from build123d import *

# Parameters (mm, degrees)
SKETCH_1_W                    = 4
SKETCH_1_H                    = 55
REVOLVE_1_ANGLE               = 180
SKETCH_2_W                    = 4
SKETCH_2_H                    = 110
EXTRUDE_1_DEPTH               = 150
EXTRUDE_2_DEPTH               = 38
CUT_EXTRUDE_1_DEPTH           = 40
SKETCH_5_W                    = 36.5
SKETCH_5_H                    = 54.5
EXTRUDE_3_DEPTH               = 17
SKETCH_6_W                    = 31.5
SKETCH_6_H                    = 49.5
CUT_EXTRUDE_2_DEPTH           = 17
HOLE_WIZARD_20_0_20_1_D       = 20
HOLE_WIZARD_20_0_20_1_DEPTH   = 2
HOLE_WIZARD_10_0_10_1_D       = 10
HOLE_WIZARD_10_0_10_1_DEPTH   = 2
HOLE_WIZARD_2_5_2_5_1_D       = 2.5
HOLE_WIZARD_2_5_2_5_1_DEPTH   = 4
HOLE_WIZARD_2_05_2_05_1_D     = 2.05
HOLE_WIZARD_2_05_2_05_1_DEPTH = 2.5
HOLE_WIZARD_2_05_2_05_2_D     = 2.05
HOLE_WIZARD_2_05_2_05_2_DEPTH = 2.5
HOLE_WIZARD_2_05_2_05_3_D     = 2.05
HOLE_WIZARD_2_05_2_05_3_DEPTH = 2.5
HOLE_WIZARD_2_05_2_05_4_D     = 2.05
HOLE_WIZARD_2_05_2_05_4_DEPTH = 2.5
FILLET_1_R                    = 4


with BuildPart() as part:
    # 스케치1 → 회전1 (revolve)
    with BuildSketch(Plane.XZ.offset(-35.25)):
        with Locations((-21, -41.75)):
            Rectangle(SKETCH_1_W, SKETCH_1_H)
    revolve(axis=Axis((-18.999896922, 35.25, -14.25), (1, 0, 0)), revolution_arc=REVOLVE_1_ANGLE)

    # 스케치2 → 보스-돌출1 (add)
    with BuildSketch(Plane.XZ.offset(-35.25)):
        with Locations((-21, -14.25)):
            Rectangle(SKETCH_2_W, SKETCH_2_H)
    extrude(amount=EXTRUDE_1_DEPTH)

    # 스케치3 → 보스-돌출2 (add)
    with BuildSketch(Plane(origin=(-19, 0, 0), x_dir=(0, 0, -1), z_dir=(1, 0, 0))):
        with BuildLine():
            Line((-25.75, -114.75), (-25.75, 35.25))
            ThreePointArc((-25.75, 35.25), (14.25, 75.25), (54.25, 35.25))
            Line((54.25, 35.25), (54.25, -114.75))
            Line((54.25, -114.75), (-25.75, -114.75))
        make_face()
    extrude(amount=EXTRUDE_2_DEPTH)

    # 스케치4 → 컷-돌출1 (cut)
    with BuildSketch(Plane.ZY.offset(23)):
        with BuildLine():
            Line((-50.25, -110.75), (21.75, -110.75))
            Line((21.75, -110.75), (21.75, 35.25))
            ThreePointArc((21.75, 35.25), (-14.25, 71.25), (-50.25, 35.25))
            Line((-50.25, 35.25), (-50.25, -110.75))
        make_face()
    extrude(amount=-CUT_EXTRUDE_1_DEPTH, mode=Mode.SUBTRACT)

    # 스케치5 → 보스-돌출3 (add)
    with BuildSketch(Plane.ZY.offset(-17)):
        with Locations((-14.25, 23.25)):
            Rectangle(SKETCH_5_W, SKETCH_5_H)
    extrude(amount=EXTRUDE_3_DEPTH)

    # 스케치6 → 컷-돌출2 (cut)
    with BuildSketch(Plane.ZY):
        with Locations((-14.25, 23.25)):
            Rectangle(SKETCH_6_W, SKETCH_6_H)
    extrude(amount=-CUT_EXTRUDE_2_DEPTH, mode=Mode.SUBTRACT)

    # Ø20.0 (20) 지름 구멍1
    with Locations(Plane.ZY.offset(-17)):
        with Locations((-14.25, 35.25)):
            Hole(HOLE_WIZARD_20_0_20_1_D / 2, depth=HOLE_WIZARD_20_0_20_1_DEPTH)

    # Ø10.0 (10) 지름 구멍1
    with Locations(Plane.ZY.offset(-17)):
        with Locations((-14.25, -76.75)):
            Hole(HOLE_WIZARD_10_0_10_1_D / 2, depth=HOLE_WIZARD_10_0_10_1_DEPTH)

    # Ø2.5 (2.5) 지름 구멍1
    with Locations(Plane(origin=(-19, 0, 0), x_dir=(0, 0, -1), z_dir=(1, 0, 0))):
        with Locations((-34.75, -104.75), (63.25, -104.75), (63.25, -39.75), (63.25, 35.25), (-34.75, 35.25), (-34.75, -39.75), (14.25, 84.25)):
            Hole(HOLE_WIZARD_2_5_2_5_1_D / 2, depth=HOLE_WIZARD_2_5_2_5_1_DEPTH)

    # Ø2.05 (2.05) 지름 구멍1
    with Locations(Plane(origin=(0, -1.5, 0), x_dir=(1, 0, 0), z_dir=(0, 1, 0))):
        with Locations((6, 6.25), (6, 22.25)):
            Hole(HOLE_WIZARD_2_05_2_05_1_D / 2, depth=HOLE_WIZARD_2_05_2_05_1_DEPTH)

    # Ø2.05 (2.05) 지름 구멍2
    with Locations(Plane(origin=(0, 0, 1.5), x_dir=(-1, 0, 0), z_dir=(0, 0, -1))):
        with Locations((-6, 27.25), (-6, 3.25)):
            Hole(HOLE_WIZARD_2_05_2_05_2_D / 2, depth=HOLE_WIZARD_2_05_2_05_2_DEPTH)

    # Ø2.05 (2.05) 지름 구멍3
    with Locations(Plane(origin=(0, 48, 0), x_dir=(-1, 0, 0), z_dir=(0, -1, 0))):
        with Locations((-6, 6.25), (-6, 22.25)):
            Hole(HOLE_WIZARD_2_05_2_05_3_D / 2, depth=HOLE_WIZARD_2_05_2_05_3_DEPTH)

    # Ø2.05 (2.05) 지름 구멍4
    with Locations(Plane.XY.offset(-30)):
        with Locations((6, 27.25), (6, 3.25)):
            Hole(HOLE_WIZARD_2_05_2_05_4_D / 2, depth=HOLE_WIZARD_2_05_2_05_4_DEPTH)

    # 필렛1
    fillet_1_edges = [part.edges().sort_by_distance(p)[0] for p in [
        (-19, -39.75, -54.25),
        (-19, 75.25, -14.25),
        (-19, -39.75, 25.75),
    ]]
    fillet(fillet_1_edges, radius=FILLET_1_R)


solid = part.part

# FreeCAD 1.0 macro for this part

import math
import FreeCAD as App
import Part
import Sketcher
from FreeCAD import Vector


def edges_at(feature, points):
    """Names of the edges that pass closest to the given points."""
    edges = feature.Shape.Edges
    near = lambda p: min(range(len(edges)), key=lambda i: edges[i].distToShape(Part.Vertex(*p))[0])
    return sorted({f"Edge{near(p) + 1}" for p in points})

doc = App.newDocument("Part")
body = doc.addObject("PartDesign::Body", "Body")

sketch1 = body.newObject("Sketcher::SketchObject", "Sketch")
sketch1.AttachmentSupport = (doc.getObject("XZ_Plane"), [""])
sketch1.MapMode = "FlatFace"
sketch1.AttachmentOffset = App.Placement(Vector(0, 0, -35.25), App.Rotation())
sketch1.addGeometry([
    Part.LineSegment(Vector(-23, -14.2, 0), Vector(-23, -69.2, 0)),
    Part.LineSegment(Vector(-23, -69.2, 0), Vector(-19, -69.2, 0)),
    Part.LineSegment(Vector(-19, -69.2, 0), Vector(-19, -14.2, 0)),
    Part.LineSegment(Vector(-19, -14.2, 0), Vector(-23, -14.2, 0)),
], False)
sketch1.addGeometry(Part.LineSegment(Vector(-23, -14.2, 0), Vector(-19, -14.2, 0)), True)
sketch1.addConstraint([
    Sketcher.Constraint("Coincident", 0, 2, 1, 1),
    Sketcher.Constraint("Coincident", 1, 2, 2, 1),
    Sketcher.Constraint("Coincident", 2, 2, 3, 1),
    Sketcher.Constraint("Coincident", 3, 2, 0, 1),
    Sketcher.Constraint("Vertical", 0),
    Sketcher.Constraint("Horizontal", 1),
    Sketcher.Constraint("Vertical", 2),
    Sketcher.Constraint("Horizontal", 3),
    Sketcher.Constraint("Horizontal", 4),
    Sketcher.Constraint("Coincident", 4, 1, 3, 2),
    Sketcher.Constraint("Vertical", 1, 2, 4, 2),
    Sketcher.Constraint("DistanceX", 1, 1, 1, 2, 4.0),
    Sketcher.Constraint("DistanceY", 0, 2, 0, 1, 55.0),
    Sketcher.Constraint("DistanceX", 0, 2, -1, 1, 23.0),
    Sketcher.Constraint("DistanceY", 0, 2, -1, 1, 69.25),
])
revolution = body.newObject("PartDesign::Revolution", "Revolution")
revolution.Profile = sketch1
revolution.ReferenceAxis = (sketch1, ["Axis0"])
revolution.Angle = 180

sketch2 = body.newObject("Sketcher::SketchObject", "Sketch001")
sketch2.AttachmentSupport = (doc.getObject("XZ_Plane"), [""])
sketch2.MapMode = "FlatFace"
sketch2.AttachmentOffset = App.Placement(Vector(0, 0, -35.25), App.Rotation())
sketch2.addGeometry([
    Part.LineSegment(Vector(-23, 40.8, 0), Vector(-23, -69.2, 0)),
    Part.LineSegment(Vector(-23, -69.2, 0), Vector(-19, -69.2, 0)),
    Part.LineSegment(Vector(-19, -69.2, 0), Vector(-19, 40.8, 0)),
    Part.LineSegment(Vector(-19, 40.8, 0), Vector(-23, 40.8, 0)),
], False)
sketch2.addConstraint([
    Sketcher.Constraint("Coincident", 0, 2, 1, 1),
    Sketcher.Constraint("Coincident", 1, 2, 2, 1),
    Sketcher.Constraint("Coincident", 2, 2, 3, 1),
    Sketcher.Constraint("Coincident", 3, 2, 0, 1),
    Sketcher.Constraint("Vertical", 0),
    Sketcher.Constraint("Horizontal", 1),
    Sketcher.Constraint("Vertical", 2),
    Sketcher.Constraint("Horizontal", 3),
    Sketcher.Constraint("DistanceX", 1, 1, 1, 2, 4.0),
    Sketcher.Constraint("DistanceY", 0, 2, 0, 1, 110.0),
    Sketcher.Constraint("DistanceX", 0, 2, -1, 1, 23.0),
    Sketcher.Constraint("DistanceY", 0, 2, -1, 1, 69.25),
])
pad1 = body.newObject("PartDesign::Pad", "Pad")
pad1.Profile = sketch2
pad1.Length = 150

sketch3 = body.newObject("Sketcher::SketchObject", "Sketch002")
sketch3.AttachmentSupport = (doc.getObject("YZ_Plane"), [""])
sketch3.MapMode = "FlatFace"
sketch3.AttachmentOffset = App.Placement(Vector(0, 0, -19), App.Rotation())
sketch3.addGeometry([
    Part.LineSegment(Vector(35, 26, 0), Vector(-115, 26, 0)),
    Part.LineSegment(Vector(-115, 26, 0), Vector(-115, -54, 0)),
    Part.LineSegment(Vector(-115, -54, 0), Vector(35, -54, 0)),
    Part.ArcOfCircle(Part.Circle(Vector(35, -14, 0), Vector(0, 0, 1), 40), math.radians(-90), math.radians(90)),
], False)
sketch3.addConstraint([
    Sketcher.Constraint("Coincident", 0, 2, 1, 1),
    Sketcher.Constraint("Coincident", 1, 2, 2, 1),
    Sketcher.Constraint("Tangent", 2, 2, 3, 1),
    Sketcher.Constraint("Tangent", 3, 2, 0, 1),
    Sketcher.Constraint("Horizontal", 0),
    Sketcher.Constraint("Vertical", 1),
    Sketcher.Constraint("Horizontal", 2),
    Sketcher.Constraint("Radius", 3, 40.0),
    Sketcher.Constraint("DistanceX", 0, 2, 0, 1, 150.0),
    Sketcher.Constraint("DistanceX", -1, 1, 3, 3, 35.25),
    Sketcher.Constraint("DistanceY", 3, 3, -1, 1, 14.25),
])
pad2 = body.newObject("PartDesign::Pad", "Pad001")
pad2.Profile = sketch3
pad2.Length = 38

sketch4 = body.newObject("Sketcher::SketchObject", "Sketch003")
sketch4.AttachmentSupport = (doc.getObject("YZ_Plane"), [""])
sketch4.MapMode = "FlatFace"
sketch4.AttachmentOffset = App.Placement(Vector(0, 0, -23), App.Rotation())
sketch4.addGeometry([
    Part.LineSegment(Vector(-111, -50, 0), Vector(-111, 22, 0)),
    Part.LineSegment(Vector(-111, 22, 0), Vector(35, 22, 0)),
    Part.ArcOfCircle(Part.Circle(Vector(35, -14, 0), Vector(0, 0, 1), 36), math.radians(-90), math.radians(90)),
    Part.LineSegment(Vector(35, -50, 0), Vector(-111, -50, 0)),
], False)
sketch4.addConstraint([
    Sketcher.Constraint("Coincident", 0, 2, 1, 1),
    Sketcher.Constraint("Tangent", 1, 2, 2, 2),
    Sketcher.Constraint("Tangent", 2, 1, 3, 1),
    Sketcher.Constraint("Coincident", 3, 2, 0, 1),
    Sketcher.Constraint("Vertical", 0),
    Sketcher.Constraint("Horizontal", 1),
    Sketcher.Constraint("Horizontal", 3),
    Sketcher.Constraint("Radius", 2, 36.0),
    Sketcher.Constraint("DistanceX", 1, 1, 1, 2, 146.0),
    Sketcher.Constraint("DistanceX", -1, 1, 2, 3, 35.25),
    Sketcher.Constraint("DistanceY", 2, 3, -1, 1, 14.25),
])
pocket1 = body.newObject("PartDesign::Pocket", "Pocket")
pocket1.Profile = sketch4
pocket1.Length = 40
pocket1.Reversed = True

sketch5 = body.newObject("Sketcher::SketchObject", "Sketch004")
sketch5.AttachmentSupport = (doc.getObject("YZ_Plane"), [""])
sketch5.MapMode = "FlatFace"
sketch5.AttachmentOffset = App.Placement(Vector(0, 0, 17), App.Rotation())
sketch5.addGeometry([
    Part.LineSegment(Vector(50, -32, 0), Vector(-4, -32, 0)),
    Part.LineSegment(Vector(-4, -32, 0), Vector(-4, 4, 0)),
    Part.LineSegment(Vector(-4, 4, 0), Vector(50, 4, 0)),
    Part.LineSegment(Vector(50, 4, 0), Vector(50, -32, 0)),
], False)
sketch5.addConstraint([
    Sketcher.Constraint("Coincident", 0, 2, 1, 1),
    Sketcher.Constraint("Coincident", 1, 2, 2, 1),
    Sketcher.Constraint("Coincident", 2, 2, 3, 1),
    Sketcher.Constraint("Coincident", 3, 2, 0, 1),
    Sketcher.Constraint("Horizontal", 0),
    Sketcher.Constraint("Vertical", 1),
    Sketcher.Constraint("Horizontal", 2),
    Sketcher.Constraint("Vertical", 3),
    Sketcher.Constraint("DistanceX", 0, 2, 0, 1, 54.5),
    Sketcher.Constraint("DistanceY", 1, 1, 1, 2, 36.5),
    Sketcher.Constraint("DistanceX", 0, 2, -1, 1, 4.0),
    Sketcher.Constraint("DistanceY", -1, 1, 1, 2, 4.0),
])
pad3 = body.newObject("PartDesign::Pad", "Pad002")
pad3.Profile = sketch5
pad3.Length = 17
pad3.Reversed = True

sketch6 = body.newObject("Sketcher::SketchObject", "Sketch005")
sketch6.AttachmentSupport = (doc.getObject("YZ_Plane"), [""])
sketch6.MapMode = "FlatFace"
sketch6.addGeometry([
    Part.LineSegment(Vector(48, -30, 0), Vector(-2, -30, 0)),
    Part.LineSegment(Vector(-2, -30, 0), Vector(-2, 2, 0)),
    Part.LineSegment(Vector(-2, 2, 0), Vector(48, 2, 0)),
    Part.LineSegment(Vector(48, 2, 0), Vector(48, -30, 0)),
], False)
sketch6.addConstraint([
    Sketcher.Constraint("Coincident", 0, 2, 1, 1),
    Sketcher.Constraint("Coincident", 1, 2, 2, 1),
    Sketcher.Constraint("Coincident", 2, 2, 3, 1),
    Sketcher.Constraint("Coincident", 3, 2, 0, 1),
    Sketcher.Constraint("Horizontal", 0),
    Sketcher.Constraint("Vertical", 1),
    Sketcher.Constraint("Horizontal", 2),
    Sketcher.Constraint("Vertical", 3),
    Sketcher.Constraint("DistanceX", 0, 2, 0, 1, 49.5),
    Sketcher.Constraint("DistanceY", 1, 1, 1, 2, 31.5),
    Sketcher.Constraint("DistanceY", 0, 2, -1, 1, 30.0),
    Sketcher.Constraint("DistanceX", -1, 1, 2, 2, 48.0),
])
pocket2 = body.newObject("PartDesign::Pocket", "Pocket001")
pocket2.Profile = sketch6
pocket2.Length = 17
pocket2.Reversed = True

sketch7 = body.newObject("Sketcher::SketchObject", "Sketch006")
sketch7.AttachmentSupport = (doc.getObject("YZ_Plane"), [""])
sketch7.MapMode = "FlatFace"
sketch7.AttachmentOffset = App.Placement(Vector(0, 0, 17), App.Rotation())
sketch7.addGeometry(Part.Circle(Vector(35, -14, 0), Vector(0, 0, 1), 10), False)
sketch7.addConstraint([
    Sketcher.Constraint("Diameter", 0, 20.0),
    Sketcher.Constraint("DistanceX", -1, 1, 0, 3, 35.25),
    Sketcher.Constraint("DistanceY", 0, 3, -1, 1, 14.25),
])
doc.recompute()
hole = body.newObject("PartDesign::Hole", "Hole")
hole.Profile = sketch7
hole.ThreadType = "None"
hole.Diameter = 20
hole.DepthType = "Dimension"
hole.Depth = 2
hole.DrillPoint = "Flat"
hole.Reversed = True

sketch8 = body.newObject("Sketcher::SketchObject", "Sketch007")
sketch8.AttachmentSupport = (doc.getObject("YZ_Plane"), [""])
sketch8.MapMode = "FlatFace"
sketch8.AttachmentOffset = App.Placement(Vector(0, 0, 17), App.Rotation())
sketch8.addGeometry(Part.Circle(Vector(-77, -14, 0), Vector(0, 0, 1), 5), False)
sketch8.addConstraint([
    Sketcher.Constraint("Diameter", 0, 10.0),
    Sketcher.Constraint("DistanceX", 0, 3, -1, 1, 76.75),
    Sketcher.Constraint("DistanceY", 0, 3, -1, 1, 14.25),
])
doc.recompute()
hole2 = body.newObject("PartDesign::Hole", "Hole001")
hole2.Profile = sketch8
hole2.ThreadType = "None"
hole2.Diameter = 10
hole2.DepthType = "Dimension"
hole2.Depth = 2
hole2.DrillPoint = "Flat"
hole2.Reversed = True

sketch9 = body.newObject("Sketcher::SketchObject", "Sketch008")
sketch9.AttachmentSupport = (doc.getObject("YZ_Plane"), [""])
sketch9.MapMode = "FlatFace"
sketch9.AttachmentOffset = App.Placement(Vector(0, 0, -19), App.Rotation())
sketch9.addGeometry([
    Part.Circle(Vector(-104.8, 34.8, 0), Vector(0, 0, 1), 1.2),
    Part.Circle(Vector(-104.8, -63.2, 0), Vector(0, 0, 1), 1.2),
    Part.Circle(Vector(-39.8, -63.2, 0), Vector(0, 0, 1), 1.2),
    Part.Circle(Vector(35.2, -63.2, 0), Vector(0, 0, 1), 1.2),
    Part.Circle(Vector(35.2, 34.8, 0), Vector(0, 0, 1), 1.2),
    Part.Circle(Vector(-39.8, 34.8, 0), Vector(0, 0, 1), 1.2),
    Part.Circle(Vector(84.2, -14.2, 0), Vector(0, 0, 1), 1.2),
], False)
sketch9.addConstraint([
    Sketcher.Constraint("Equal", 0, 1),
    Sketcher.Constraint("Equal", 1, 2),
    Sketcher.Constraint("Equal", 2, 3),
    Sketcher.Constraint("Equal", 3, 4),
    Sketcher.Constraint("Equal", 4, 5),
    Sketcher.Constraint("Equal", 5, 6),
    Sketcher.Constraint("Horizontal", 1, 3, 2, 3),
    Sketcher.Constraint("Horizontal", 2, 3, 3, 3),
    Sketcher.Constraint("Horizontal", 0, 3, 4, 3),
    Sketcher.Constraint("Horizontal", 4, 3, 5, 3),
    Sketcher.Constraint("Vertical", 0, 3, 1, 3),
    Sketcher.Constraint("Vertical", 3, 3, 4, 3),
    Sketcher.Constraint("Vertical", 2, 3, 5, 3),
    Sketcher.Constraint("Diameter", 0, 2.5),
    Sketcher.Constraint("DistanceY", 1, 3, 0, 3, 98.0),
    Sketcher.Constraint("DistanceX", 1, 3, 2, 3, 65.0),
    Sketcher.Constraint("DistanceX", 2, 3, 3, 3, 75.0),
    Sketcher.Constraint("DistanceX", 3, 3, 6, 3, 49.0),
    Sketcher.Constraint("DistanceY", 3, 3, 6, 3, 49.0),
    Sketcher.Constraint("DistanceX", 0, 3, -1, 1, 104.75),
    Sketcher.Constraint("DistanceY", -1, 1, 0, 3, 34.75),
])
doc.recompute()
hole3 = body.newObject("PartDesign::Hole", "Hole002")
hole3.Profile = sketch9
hole3.ThreadType = "None"
hole3.Diameter = 2.5
hole3.DepthType = "Dimension"
hole3.Depth = 4
hole3.DrillPoint = "Flat"

sketch10 = body.newObject("Sketcher::SketchObject", "Sketch009")
sketch10.AttachmentSupport = (doc.getObject("XZ_Plane"), [""])
sketch10.MapMode = "FlatFace"
sketch10.AttachmentOffset = App.Placement(Vector(0, 0, 1.5), App.Rotation())
sketch10.addGeometry([
    Part.Circle(Vector(6, -6.2, 0), Vector(0, 0, 1), 1),
    Part.Circle(Vector(6, -22.2, 0), Vector(0, 0, 1), 1),
], False)
sketch10.addConstraint([
    Sketcher.Constraint("Equal", 0, 1),
    Sketcher.Constraint("Vertical", 0, 3, 1, 3),
    Sketcher.Constraint("Diameter", 0, 2.05),
    Sketcher.Constraint("DistanceX", -1, 1, 0, 3, 6.0),
    Sketcher.Constraint("DistanceY", 1, 3, 0, 3, 16.0),
    Sketcher.Constraint("DistanceY", 0, 3, -1, 1, 6.25),
])
doc.recompute()
hole4 = body.newObject("PartDesign::Hole", "Hole003")
hole4.Profile = sketch10
hole4.ThreadType = "None"
hole4.Diameter = 2.05
hole4.DepthType = "Dimension"
hole4.Depth = 2.5
hole4.DrillPoint = "Flat"
hole4.Reversed = True

sketch11 = body.newObject("Sketcher::SketchObject", "Sketch010")
sketch11.AttachmentSupport = (doc.getObject("XY_Plane"), [""])
sketch11.MapMode = "FlatFace"
sketch11.AttachmentOffset = App.Placement(Vector(0, 0, 1.5), App.Rotation())
sketch11.addGeometry([
    Part.Circle(Vector(6, 27.2, 0), Vector(0, 0, 1), 1),
    Part.Circle(Vector(6, 3.2, 0), Vector(0, 0, 1), 1),
], False)
sketch11.addConstraint([
    Sketcher.Constraint("Equal", 0, 1),
    Sketcher.Constraint("Vertical", 0, 3, 1, 3),
    Sketcher.Constraint("Diameter", 0, 2.05),
    Sketcher.Constraint("DistanceX", -1, 1, 0, 3, 6.0),
    Sketcher.Constraint("DistanceY", 1, 3, 0, 3, 24.0),
    Sketcher.Constraint("DistanceY", -1, 1, 0, 3, 27.25),
])
doc.recompute()
hole5 = body.newObject("PartDesign::Hole", "Hole004")
hole5.Profile = sketch11
hole5.ThreadType = "None"
hole5.Diameter = 2.05
hole5.DepthType = "Dimension"
hole5.Depth = 2.5
hole5.DrillPoint = "Flat"
hole5.Reversed = True

sketch12 = body.newObject("Sketcher::SketchObject", "Sketch011")
sketch12.AttachmentSupport = (doc.getObject("XZ_Plane"), [""])
sketch12.MapMode = "FlatFace"
sketch12.AttachmentOffset = App.Placement(Vector(0, 0, -48), App.Rotation())
sketch12.addGeometry([
    Part.Circle(Vector(6, -6.2, 0), Vector(0, 0, 1), 1),
    Part.Circle(Vector(6, -22.2, 0), Vector(0, 0, 1), 1),
], False)
sketch12.addConstraint([
    Sketcher.Constraint("Equal", 0, 1),
    Sketcher.Constraint("Vertical", 0, 3, 1, 3),
    Sketcher.Constraint("Diameter", 0, 2.05),
    Sketcher.Constraint("DistanceX", -1, 1, 0, 3, 6.0),
    Sketcher.Constraint("DistanceY", 1, 3, 0, 3, 16.0),
    Sketcher.Constraint("DistanceY", 0, 3, -1, 1, 6.25),
])
doc.recompute()
hole6 = body.newObject("PartDesign::Hole", "Hole005")
hole6.Profile = sketch12
hole6.ThreadType = "None"
hole6.Diameter = 2.05
hole6.DepthType = "Dimension"
hole6.Depth = 2.5
hole6.DrillPoint = "Flat"

sketch13 = body.newObject("Sketcher::SketchObject", "Sketch012")
sketch13.AttachmentSupport = (doc.getObject("XY_Plane"), [""])
sketch13.MapMode = "FlatFace"
sketch13.AttachmentOffset = App.Placement(Vector(0, 0, -30), App.Rotation())
sketch13.addGeometry([
    Part.Circle(Vector(6, 27.2, 0), Vector(0, 0, 1), 1),
    Part.Circle(Vector(6, 3.2, 0), Vector(0, 0, 1), 1),
], False)
sketch13.addConstraint([
    Sketcher.Constraint("Equal", 0, 1),
    Sketcher.Constraint("Vertical", 0, 3, 1, 3),
    Sketcher.Constraint("Diameter", 0, 2.05),
    Sketcher.Constraint("DistanceX", -1, 1, 0, 3, 6.0),
    Sketcher.Constraint("DistanceY", 1, 3, 0, 3, 24.0),
    Sketcher.Constraint("DistanceY", -1, 1, 0, 3, 27.25),
])
doc.recompute()
hole7 = body.newObject("PartDesign::Hole", "Hole006")
hole7.Profile = sketch13
hole7.ThreadType = "None"
hole7.Diameter = 2.05
hole7.DepthType = "Dimension"
hole7.Depth = 2.5
hole7.DrillPoint = "Flat"
doc.recompute()

fillet = body.newObject("PartDesign::Fillet", "Fillet")
fillet.Base = (hole7, edges_at(hole7, [(-19, -39.75, -54.25), (-19, 75.25, -14.25), (-19, -39.75, 25.75)]))
fillet.Radius = 4

doc.recompute()
